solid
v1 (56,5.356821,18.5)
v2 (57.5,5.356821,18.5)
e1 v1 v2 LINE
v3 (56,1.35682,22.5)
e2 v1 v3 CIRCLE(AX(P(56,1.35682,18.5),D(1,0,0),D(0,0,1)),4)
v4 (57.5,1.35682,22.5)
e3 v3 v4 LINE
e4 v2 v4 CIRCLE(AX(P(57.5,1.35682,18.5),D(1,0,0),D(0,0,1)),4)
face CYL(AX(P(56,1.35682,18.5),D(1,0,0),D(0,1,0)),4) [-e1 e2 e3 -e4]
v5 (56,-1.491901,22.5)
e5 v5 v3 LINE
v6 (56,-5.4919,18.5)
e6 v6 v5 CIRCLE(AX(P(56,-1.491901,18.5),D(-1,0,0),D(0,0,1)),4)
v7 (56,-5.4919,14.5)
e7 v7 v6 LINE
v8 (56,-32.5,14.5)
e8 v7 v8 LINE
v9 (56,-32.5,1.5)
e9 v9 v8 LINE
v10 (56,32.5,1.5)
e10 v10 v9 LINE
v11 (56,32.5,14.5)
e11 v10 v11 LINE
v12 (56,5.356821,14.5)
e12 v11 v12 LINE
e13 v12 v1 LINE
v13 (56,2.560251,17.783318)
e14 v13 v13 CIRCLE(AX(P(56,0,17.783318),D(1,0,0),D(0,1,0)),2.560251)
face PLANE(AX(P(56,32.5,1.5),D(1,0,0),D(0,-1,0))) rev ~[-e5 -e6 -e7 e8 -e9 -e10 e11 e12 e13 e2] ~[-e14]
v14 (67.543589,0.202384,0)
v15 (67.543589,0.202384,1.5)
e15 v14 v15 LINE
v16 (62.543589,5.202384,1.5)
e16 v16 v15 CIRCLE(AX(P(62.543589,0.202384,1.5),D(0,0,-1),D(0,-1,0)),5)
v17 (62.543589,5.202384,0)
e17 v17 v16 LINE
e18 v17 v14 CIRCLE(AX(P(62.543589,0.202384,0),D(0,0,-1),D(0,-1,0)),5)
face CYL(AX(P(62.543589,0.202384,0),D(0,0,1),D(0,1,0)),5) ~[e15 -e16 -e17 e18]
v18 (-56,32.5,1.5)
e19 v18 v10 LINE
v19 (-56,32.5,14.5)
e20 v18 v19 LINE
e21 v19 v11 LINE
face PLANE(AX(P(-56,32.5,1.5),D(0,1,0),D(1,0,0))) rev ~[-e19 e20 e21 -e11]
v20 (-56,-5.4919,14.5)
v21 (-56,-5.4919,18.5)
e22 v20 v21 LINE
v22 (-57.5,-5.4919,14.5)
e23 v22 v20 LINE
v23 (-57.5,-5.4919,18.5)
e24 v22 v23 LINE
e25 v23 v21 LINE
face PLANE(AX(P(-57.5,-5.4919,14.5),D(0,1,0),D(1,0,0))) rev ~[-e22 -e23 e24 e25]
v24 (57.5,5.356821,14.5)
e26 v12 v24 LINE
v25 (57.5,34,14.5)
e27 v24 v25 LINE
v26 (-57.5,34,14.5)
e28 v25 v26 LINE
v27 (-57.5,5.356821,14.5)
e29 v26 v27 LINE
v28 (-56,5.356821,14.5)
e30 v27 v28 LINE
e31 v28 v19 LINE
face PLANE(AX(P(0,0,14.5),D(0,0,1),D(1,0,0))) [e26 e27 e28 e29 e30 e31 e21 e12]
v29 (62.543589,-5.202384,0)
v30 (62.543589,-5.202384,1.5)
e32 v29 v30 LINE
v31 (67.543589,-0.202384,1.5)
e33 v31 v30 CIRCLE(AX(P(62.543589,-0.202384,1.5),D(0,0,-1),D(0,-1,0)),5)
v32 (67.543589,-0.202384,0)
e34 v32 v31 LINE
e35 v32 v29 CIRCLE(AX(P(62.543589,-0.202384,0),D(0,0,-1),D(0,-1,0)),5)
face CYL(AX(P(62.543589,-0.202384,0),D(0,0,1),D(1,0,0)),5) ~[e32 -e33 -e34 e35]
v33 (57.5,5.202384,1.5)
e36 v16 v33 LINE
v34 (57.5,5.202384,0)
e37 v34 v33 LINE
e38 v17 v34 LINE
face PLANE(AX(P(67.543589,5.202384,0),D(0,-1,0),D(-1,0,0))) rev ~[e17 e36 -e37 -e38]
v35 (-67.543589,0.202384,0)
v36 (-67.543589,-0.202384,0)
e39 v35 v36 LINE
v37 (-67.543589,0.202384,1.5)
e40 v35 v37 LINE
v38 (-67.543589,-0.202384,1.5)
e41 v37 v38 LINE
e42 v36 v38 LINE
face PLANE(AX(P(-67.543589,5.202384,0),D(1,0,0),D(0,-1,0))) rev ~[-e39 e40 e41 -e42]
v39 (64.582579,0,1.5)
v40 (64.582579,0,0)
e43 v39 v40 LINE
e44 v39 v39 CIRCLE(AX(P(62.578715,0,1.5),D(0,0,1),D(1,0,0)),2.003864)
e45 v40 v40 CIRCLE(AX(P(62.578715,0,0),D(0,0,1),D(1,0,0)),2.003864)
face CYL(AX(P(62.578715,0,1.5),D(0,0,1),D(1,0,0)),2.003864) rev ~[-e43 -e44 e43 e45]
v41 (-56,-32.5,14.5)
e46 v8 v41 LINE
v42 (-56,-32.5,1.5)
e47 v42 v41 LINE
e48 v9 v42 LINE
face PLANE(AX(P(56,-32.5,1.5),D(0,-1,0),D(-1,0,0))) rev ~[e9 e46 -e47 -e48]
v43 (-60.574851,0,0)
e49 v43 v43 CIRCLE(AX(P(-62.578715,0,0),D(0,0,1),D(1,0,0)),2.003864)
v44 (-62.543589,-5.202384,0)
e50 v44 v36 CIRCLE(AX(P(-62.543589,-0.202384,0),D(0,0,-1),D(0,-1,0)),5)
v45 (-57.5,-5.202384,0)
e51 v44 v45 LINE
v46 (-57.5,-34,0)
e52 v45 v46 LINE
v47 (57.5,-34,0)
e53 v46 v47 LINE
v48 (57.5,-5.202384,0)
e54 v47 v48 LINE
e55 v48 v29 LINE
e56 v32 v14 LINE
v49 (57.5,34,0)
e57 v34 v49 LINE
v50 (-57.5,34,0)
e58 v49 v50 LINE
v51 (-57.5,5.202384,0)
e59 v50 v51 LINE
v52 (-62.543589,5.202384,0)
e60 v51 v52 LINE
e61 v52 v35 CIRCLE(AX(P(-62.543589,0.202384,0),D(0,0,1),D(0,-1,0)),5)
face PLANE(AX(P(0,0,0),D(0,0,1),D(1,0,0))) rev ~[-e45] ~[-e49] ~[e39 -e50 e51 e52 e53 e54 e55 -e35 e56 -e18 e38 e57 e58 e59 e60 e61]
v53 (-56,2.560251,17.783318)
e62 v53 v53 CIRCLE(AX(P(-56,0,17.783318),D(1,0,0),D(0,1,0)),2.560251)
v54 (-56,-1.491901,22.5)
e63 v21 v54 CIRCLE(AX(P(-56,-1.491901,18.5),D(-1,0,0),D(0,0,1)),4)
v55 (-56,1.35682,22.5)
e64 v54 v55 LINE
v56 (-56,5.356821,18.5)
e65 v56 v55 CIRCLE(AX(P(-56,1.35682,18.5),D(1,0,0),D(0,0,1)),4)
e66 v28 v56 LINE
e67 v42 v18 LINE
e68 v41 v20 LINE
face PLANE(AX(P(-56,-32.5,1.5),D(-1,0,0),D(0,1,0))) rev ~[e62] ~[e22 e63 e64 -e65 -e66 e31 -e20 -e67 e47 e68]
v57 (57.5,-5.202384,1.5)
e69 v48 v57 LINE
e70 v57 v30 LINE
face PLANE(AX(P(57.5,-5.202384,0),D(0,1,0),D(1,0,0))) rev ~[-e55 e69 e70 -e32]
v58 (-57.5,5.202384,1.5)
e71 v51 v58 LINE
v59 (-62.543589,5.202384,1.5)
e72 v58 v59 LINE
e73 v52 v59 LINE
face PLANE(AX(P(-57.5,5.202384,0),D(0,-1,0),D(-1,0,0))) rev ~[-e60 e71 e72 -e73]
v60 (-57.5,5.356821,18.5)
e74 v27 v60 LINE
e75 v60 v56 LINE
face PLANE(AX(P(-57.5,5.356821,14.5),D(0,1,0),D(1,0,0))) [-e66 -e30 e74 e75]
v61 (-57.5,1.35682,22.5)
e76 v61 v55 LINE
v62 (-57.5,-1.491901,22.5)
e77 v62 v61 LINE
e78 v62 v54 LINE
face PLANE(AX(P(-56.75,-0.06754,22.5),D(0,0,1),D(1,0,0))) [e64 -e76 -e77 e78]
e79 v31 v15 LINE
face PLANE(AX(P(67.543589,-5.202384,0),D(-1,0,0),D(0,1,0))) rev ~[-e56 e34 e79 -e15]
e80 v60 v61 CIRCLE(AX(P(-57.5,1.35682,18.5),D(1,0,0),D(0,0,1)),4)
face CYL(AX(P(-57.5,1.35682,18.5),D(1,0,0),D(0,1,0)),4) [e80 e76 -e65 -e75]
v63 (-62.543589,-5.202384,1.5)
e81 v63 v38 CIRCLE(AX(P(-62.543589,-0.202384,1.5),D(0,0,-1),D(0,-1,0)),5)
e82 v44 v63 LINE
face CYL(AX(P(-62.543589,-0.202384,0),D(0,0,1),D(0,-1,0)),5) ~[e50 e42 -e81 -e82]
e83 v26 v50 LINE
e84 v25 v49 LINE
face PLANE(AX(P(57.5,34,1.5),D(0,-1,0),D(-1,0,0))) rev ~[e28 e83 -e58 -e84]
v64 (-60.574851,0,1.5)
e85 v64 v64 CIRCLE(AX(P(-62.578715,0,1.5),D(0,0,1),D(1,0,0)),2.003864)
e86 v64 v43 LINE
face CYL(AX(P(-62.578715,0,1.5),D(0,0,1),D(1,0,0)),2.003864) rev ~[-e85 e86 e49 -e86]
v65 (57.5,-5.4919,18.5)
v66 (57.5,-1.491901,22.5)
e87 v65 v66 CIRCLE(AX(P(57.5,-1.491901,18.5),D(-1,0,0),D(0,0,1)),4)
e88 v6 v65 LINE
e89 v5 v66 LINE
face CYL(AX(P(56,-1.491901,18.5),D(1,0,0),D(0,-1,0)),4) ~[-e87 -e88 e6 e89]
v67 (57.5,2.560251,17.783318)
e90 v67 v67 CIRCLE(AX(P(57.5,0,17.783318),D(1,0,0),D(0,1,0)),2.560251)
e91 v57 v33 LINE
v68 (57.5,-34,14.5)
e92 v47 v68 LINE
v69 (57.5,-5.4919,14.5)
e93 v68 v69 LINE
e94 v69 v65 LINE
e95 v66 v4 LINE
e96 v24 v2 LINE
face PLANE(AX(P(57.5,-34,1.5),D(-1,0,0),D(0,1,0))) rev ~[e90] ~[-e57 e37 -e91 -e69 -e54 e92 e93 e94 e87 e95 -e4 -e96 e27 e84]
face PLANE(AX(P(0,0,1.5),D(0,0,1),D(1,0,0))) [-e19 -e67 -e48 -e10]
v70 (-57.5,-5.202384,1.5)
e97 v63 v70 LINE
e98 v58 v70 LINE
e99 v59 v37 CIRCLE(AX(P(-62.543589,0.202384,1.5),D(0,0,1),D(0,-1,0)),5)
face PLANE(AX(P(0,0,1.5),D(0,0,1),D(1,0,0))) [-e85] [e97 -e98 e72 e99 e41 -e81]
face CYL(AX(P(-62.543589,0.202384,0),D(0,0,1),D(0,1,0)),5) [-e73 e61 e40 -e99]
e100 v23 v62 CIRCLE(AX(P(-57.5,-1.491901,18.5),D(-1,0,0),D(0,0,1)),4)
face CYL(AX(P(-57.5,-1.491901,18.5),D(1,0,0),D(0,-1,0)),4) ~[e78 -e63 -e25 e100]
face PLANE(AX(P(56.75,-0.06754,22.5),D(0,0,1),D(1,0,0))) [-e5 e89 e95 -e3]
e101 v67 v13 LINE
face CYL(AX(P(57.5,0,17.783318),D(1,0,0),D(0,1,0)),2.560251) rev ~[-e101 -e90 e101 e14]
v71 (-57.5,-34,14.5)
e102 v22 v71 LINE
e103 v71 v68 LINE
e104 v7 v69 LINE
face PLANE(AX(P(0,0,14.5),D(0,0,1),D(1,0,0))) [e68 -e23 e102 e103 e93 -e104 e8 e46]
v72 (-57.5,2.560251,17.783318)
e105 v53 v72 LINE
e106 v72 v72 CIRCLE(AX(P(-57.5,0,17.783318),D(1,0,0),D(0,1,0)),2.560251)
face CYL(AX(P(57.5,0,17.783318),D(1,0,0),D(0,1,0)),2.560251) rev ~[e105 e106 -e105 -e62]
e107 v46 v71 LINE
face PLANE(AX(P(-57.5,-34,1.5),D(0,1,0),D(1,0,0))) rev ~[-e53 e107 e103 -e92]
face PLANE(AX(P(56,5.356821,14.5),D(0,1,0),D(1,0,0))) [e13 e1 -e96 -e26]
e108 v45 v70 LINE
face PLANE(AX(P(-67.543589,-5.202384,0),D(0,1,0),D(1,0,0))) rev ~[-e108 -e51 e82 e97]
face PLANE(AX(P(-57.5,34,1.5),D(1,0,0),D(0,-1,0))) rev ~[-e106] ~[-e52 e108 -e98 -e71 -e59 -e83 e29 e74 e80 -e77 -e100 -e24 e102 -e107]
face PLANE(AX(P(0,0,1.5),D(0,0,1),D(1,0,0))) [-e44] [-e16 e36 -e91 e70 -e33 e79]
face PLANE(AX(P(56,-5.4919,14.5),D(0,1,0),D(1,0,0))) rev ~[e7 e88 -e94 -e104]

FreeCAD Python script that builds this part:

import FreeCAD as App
import Part
import Sketcher
Q = App.Units.Quantity


def edges_at(feature, points):
    """Names of the edges that pass closest to the given points."""
    edges = feature.Shape.Edges
    near = lambda p: min(range(len(edges)), key=lambda i: edges[i].distToShape(Part.Vertex(*p))[0])
    return sorted({f"Edge{near(p) + 1}" for p in points})


def add_polygon(sketch, points):
    """Adds a closed chain of lines whose ends are joined by coincident constraints."""
    first, n = sketch.GeometryCount, len(points)
    for a, b in zip(points, points[1:] + points[:1]):
        sketch.addGeometry(Part.LineSegment(App.Vector(*a, 0), App.Vector(*b, 0)), False)
    for i in range(n):
        sketch.addConstraint(Sketcher.Constraint("Coincident", first + i, 2, first + (i + 1) % n, 1))

doc = App.newDocument("Part")
body = doc.addObject("PartDesign::Body", "Body")

# Sketch on XY plane
sketch1 = body.newObject("Sketcher::SketchObject", "Sketch")
sketch1.AttachmentSupport = (doc.getObject("XY_Plane"), [""])
sketch1.MapMode = "FlatFace"
add_polygon(sketch1, [(57.5, 34), (-57.5, 34), (-57.5, 5.202384), (-67.543589, 5.202384), (-67.543589, -5.202384), (-57.5, -5.202384), (-57.5, -34), (57.5, -34), (57.5, -5.202384), (67.543589, -5.202384), (67.543589, 5.202384), (57.5, 5.202384)])  # lines 0-11
sketch1.addConstraint([
    Sketcher.Constraint("Horizontal", 0),
    Sketcher.Constraint("Vertical", 1),
    Sketcher.Constraint("Horizontal", 2),
    Sketcher.Constraint("Vertical", 3),
    Sketcher.Constraint("Horizontal", 4),
    Sketcher.Constraint("Vertical", 5),
    Sketcher.Constraint("Horizontal", 6),
    Sketcher.Constraint("Vertical", 7),
    Sketcher.Constraint("Horizontal", 8),
    Sketcher.Constraint("Vertical", 9),
    Sketcher.Constraint("Horizontal", 10),
    Sketcher.Constraint("Vertical", 11),
    Sketcher.Constraint("Symmetric", 0, 2, 6, 2, -1, 1),
    Sketcher.Constraint("Symmetric", 2, 2, 8, 2, -1, 1),
    Sketcher.Constraint("Symmetric", 4, 2, 10, 2, -1, 1),
    Sketcher.Constraint("Symmetric", 4, 2, 7, 2, -2),
    Sketcher.Constraint("DistanceX", 0, 2, 0, 1, Q("115 mm")),
    Sketcher.Constraint("DistanceY", -1, 1, 0, 2, Q("34 mm")),
    Sketcher.Constraint("DistanceX", 2, 2, 2, 1, Q("10.043589 mm")),
    Sketcher.Constraint("DistanceY", 3, 2, 3, 1, Q("10.404768 mm")),
])
pad1 = body.newObject("PartDesign::Pad", "Pad")
pad1.Profile = sketch1
pad1.Length = 1.5

# Sketch on XY plane
sketch2 = body.newObject("Sketcher::SketchObject", "Sketch001")
sketch2.AttachmentSupport = (doc.getObject("XY_Plane"), [""])
sketch2.MapMode = "FlatFace"
sketch2.AttachmentOffset = App.Placement(App.Vector(0, 0, 1.5), App.Rotation())
add_polygon(sketch2, [(-57.5, 34), (-57.5, -34), (57.5, -34), (57.5, 34)])  # lines 0-3
add_polygon(sketch2, [(-56, -32.5), (-56, 32.5), (56, 32.5), (56, -32.5)])  # lines 4-7
sketch2.addConstraint([
    Sketcher.Constraint("Vertical", 0),
    Sketcher.Constraint("Horizontal", 1),
    Sketcher.Constraint("Vertical", 2),
    Sketcher.Constraint("Horizontal", 3),
    Sketcher.Constraint("Vertical", 4),
    Sketcher.Constraint("Horizontal", 5),
    Sketcher.Constraint("Vertical", 6),
    Sketcher.Constraint("Horizontal", 7),
    Sketcher.Constraint("Symmetric", 0, 2, 2, 2, -1, 1),
    Sketcher.Constraint("Symmetric", 4, 2, 6, 2, -1, 1),
    Sketcher.Constraint("DistanceX", 1, 1, 1, 2, Q("115 mm")),
    Sketcher.Constraint("DistanceX", 5, 1, 5, 2, Q("112 mm")),
    Sketcher.Constraint("DistanceY", 0, 2, 0, 1, Q("68 mm")),
    Sketcher.Constraint("DistanceY", 4, 1, 4, 2, Q("65 mm")),
])
pad2 = body.newObject("PartDesign::Pad", "Pad001")
pad2.Profile = sketch2
pad2.Length = 13

# Sketch on XY plane
sketch3 = body.newObject("Sketcher::SketchObject", "Sketch002")
sketch3.AttachmentSupport = (doc.getObject("XY_Plane"), [""])
sketch3.MapMode = "FlatFace"
sketch3.AttachmentOffset = App.Placement(App.Vector(0, 0, 1.5), App.Rotation())
sketch3.addGeometry([
    Part.Circle(App.Vector(-62.578715, 0, 0), App.Vector(0, 0, 1), 2.003864),
    Part.Circle(App.Vector(62.578715, 0, 0), App.Vector(0, 0, 1), 2.003864),
], False)
sketch3.addConstraint([
    Sketcher.Constraint("Equal", 0, 1),
    Sketcher.Constraint("Symmetric", 0, 3, 1, 3, -1, 1),
    Sketcher.Constraint("PointOnObject", 0, 3, -1),
    Sketcher.Constraint("Diameter", 0, Q("4.007728 mm")),
    Sketcher.Constraint("DistanceX", 0, 3, 1, 3, Q("125.15743 mm")),
])
pocket1 = body.newObject("PartDesign::Pocket", "Pocket")
pocket1.Profile = sketch3
pocket1.Length = 2
doc.recompute()

fillet = body.newObject("PartDesign::Fillet", "Fillet")
fillet.Base = (pocket1, edges_at(pocket1, [
    (-67.544, 5.202, 0.75),
    (-67.544, -5.202, 0.75),
    (67.544, 5.202, 0.75),
    (67.544, -5.202, 0.75),
]))
fillet.Radius = 5

# Sketch on XY plane
sketch4 = body.newObject("Sketcher::SketchObject", "Sketch003")
sketch4.AttachmentSupport = (doc.getObject("XY_Plane"), [""])
sketch4.MapMode = "FlatFace"
sketch4.AttachmentOffset = App.Placement(App.Vector(0, 0, 14.5), App.Rotation())
add_polygon(sketch4, [(-57.5, 5.356821), (-57.5, -5.4919), (-56, -5.4919), (-56, 5.356821)])  # lines 0-3
add_polygon(sketch4, [(56, 5.356821), (56, -5.4919), (57.5, -5.4919), (57.5, 5.356821)])  # lines 4-7
sketch4.addConstraint([
    Sketcher.Constraint("Vertical", 0),
    Sketcher.Constraint("Horizontal", 1),
    Sketcher.Constraint("Vertical", 2),
    Sketcher.Constraint("Horizontal", 3),
    Sketcher.Constraint("Vertical", 4),
    Sketcher.Constraint("Horizontal", 5),
    Sketcher.Constraint("Vertical", 6),
    Sketcher.Constraint("Horizontal", 7),
    Sketcher.Constraint("Symmetric", 1, 2, 4, 2, -2),
    Sketcher.Constraint("Symmetric", 3, 2, 6, 2, -2),
    Sketcher.Constraint("DistanceX", 1, 1, 1, 2, Q("1.5 mm")),
    Sketcher.Constraint("DistanceX", 1, 2, -1, 1, Q("56 mm")),
    Sketcher.Constraint("DistanceY", 0, 2, 0, 1, Q("10.848721 mm")),
    Sketcher.Constraint("DistanceY", 0, 2, -1, 1, Q("5.4919 mm")),
])
pad3 = body.newObject("PartDesign::Pad", "Pad002")
pad3.Profile = sketch4
pad3.Length = 8
doc.recompute()

fillet2 = body.newObject("PartDesign::Fillet", "Fillet001")
fillet2.Base = (pad3, edges_at(pad3, [
    (-56.75, -5.492, 22.5),
    (-56.75, 5.357, 22.5),
    (56.75, -5.492, 22.5),
    (56.75, 5.357, 22.5),
]))
fillet2.Radius = 4

# Sketch on YZ plane
sketch5 = body.newObject("Sketcher::SketchObject", "Sketch004")
sketch5.AttachmentSupport = (doc.getObject("YZ_Plane"), [""])
sketch5.MapMode = "FlatFace"
sketch5.AttachmentOffset = App.Placement(App.Vector(0, 0, 57.5), App.Rotation())
sketch5.addGeometry(Part.Circle(App.Vector(0, 17.783318, 0), App.Vector(0, 0, 1), 2.560251), False)
sketch5.addConstraint([
    Sketcher.Constraint("PointOnObject", 0, 3, -2),
    Sketcher.Constraint("Diameter", 0, Q("5.120502 mm")),
    Sketcher.Constraint("DistanceY", -1, 1, 0, 3, Q("17.783318 mm")),
])
pocket2 = body.newObject("PartDesign::Pocket", "Pocket001")
pocket2.Profile = sketch5
pocket2.Length = 125

doc.recompute()
